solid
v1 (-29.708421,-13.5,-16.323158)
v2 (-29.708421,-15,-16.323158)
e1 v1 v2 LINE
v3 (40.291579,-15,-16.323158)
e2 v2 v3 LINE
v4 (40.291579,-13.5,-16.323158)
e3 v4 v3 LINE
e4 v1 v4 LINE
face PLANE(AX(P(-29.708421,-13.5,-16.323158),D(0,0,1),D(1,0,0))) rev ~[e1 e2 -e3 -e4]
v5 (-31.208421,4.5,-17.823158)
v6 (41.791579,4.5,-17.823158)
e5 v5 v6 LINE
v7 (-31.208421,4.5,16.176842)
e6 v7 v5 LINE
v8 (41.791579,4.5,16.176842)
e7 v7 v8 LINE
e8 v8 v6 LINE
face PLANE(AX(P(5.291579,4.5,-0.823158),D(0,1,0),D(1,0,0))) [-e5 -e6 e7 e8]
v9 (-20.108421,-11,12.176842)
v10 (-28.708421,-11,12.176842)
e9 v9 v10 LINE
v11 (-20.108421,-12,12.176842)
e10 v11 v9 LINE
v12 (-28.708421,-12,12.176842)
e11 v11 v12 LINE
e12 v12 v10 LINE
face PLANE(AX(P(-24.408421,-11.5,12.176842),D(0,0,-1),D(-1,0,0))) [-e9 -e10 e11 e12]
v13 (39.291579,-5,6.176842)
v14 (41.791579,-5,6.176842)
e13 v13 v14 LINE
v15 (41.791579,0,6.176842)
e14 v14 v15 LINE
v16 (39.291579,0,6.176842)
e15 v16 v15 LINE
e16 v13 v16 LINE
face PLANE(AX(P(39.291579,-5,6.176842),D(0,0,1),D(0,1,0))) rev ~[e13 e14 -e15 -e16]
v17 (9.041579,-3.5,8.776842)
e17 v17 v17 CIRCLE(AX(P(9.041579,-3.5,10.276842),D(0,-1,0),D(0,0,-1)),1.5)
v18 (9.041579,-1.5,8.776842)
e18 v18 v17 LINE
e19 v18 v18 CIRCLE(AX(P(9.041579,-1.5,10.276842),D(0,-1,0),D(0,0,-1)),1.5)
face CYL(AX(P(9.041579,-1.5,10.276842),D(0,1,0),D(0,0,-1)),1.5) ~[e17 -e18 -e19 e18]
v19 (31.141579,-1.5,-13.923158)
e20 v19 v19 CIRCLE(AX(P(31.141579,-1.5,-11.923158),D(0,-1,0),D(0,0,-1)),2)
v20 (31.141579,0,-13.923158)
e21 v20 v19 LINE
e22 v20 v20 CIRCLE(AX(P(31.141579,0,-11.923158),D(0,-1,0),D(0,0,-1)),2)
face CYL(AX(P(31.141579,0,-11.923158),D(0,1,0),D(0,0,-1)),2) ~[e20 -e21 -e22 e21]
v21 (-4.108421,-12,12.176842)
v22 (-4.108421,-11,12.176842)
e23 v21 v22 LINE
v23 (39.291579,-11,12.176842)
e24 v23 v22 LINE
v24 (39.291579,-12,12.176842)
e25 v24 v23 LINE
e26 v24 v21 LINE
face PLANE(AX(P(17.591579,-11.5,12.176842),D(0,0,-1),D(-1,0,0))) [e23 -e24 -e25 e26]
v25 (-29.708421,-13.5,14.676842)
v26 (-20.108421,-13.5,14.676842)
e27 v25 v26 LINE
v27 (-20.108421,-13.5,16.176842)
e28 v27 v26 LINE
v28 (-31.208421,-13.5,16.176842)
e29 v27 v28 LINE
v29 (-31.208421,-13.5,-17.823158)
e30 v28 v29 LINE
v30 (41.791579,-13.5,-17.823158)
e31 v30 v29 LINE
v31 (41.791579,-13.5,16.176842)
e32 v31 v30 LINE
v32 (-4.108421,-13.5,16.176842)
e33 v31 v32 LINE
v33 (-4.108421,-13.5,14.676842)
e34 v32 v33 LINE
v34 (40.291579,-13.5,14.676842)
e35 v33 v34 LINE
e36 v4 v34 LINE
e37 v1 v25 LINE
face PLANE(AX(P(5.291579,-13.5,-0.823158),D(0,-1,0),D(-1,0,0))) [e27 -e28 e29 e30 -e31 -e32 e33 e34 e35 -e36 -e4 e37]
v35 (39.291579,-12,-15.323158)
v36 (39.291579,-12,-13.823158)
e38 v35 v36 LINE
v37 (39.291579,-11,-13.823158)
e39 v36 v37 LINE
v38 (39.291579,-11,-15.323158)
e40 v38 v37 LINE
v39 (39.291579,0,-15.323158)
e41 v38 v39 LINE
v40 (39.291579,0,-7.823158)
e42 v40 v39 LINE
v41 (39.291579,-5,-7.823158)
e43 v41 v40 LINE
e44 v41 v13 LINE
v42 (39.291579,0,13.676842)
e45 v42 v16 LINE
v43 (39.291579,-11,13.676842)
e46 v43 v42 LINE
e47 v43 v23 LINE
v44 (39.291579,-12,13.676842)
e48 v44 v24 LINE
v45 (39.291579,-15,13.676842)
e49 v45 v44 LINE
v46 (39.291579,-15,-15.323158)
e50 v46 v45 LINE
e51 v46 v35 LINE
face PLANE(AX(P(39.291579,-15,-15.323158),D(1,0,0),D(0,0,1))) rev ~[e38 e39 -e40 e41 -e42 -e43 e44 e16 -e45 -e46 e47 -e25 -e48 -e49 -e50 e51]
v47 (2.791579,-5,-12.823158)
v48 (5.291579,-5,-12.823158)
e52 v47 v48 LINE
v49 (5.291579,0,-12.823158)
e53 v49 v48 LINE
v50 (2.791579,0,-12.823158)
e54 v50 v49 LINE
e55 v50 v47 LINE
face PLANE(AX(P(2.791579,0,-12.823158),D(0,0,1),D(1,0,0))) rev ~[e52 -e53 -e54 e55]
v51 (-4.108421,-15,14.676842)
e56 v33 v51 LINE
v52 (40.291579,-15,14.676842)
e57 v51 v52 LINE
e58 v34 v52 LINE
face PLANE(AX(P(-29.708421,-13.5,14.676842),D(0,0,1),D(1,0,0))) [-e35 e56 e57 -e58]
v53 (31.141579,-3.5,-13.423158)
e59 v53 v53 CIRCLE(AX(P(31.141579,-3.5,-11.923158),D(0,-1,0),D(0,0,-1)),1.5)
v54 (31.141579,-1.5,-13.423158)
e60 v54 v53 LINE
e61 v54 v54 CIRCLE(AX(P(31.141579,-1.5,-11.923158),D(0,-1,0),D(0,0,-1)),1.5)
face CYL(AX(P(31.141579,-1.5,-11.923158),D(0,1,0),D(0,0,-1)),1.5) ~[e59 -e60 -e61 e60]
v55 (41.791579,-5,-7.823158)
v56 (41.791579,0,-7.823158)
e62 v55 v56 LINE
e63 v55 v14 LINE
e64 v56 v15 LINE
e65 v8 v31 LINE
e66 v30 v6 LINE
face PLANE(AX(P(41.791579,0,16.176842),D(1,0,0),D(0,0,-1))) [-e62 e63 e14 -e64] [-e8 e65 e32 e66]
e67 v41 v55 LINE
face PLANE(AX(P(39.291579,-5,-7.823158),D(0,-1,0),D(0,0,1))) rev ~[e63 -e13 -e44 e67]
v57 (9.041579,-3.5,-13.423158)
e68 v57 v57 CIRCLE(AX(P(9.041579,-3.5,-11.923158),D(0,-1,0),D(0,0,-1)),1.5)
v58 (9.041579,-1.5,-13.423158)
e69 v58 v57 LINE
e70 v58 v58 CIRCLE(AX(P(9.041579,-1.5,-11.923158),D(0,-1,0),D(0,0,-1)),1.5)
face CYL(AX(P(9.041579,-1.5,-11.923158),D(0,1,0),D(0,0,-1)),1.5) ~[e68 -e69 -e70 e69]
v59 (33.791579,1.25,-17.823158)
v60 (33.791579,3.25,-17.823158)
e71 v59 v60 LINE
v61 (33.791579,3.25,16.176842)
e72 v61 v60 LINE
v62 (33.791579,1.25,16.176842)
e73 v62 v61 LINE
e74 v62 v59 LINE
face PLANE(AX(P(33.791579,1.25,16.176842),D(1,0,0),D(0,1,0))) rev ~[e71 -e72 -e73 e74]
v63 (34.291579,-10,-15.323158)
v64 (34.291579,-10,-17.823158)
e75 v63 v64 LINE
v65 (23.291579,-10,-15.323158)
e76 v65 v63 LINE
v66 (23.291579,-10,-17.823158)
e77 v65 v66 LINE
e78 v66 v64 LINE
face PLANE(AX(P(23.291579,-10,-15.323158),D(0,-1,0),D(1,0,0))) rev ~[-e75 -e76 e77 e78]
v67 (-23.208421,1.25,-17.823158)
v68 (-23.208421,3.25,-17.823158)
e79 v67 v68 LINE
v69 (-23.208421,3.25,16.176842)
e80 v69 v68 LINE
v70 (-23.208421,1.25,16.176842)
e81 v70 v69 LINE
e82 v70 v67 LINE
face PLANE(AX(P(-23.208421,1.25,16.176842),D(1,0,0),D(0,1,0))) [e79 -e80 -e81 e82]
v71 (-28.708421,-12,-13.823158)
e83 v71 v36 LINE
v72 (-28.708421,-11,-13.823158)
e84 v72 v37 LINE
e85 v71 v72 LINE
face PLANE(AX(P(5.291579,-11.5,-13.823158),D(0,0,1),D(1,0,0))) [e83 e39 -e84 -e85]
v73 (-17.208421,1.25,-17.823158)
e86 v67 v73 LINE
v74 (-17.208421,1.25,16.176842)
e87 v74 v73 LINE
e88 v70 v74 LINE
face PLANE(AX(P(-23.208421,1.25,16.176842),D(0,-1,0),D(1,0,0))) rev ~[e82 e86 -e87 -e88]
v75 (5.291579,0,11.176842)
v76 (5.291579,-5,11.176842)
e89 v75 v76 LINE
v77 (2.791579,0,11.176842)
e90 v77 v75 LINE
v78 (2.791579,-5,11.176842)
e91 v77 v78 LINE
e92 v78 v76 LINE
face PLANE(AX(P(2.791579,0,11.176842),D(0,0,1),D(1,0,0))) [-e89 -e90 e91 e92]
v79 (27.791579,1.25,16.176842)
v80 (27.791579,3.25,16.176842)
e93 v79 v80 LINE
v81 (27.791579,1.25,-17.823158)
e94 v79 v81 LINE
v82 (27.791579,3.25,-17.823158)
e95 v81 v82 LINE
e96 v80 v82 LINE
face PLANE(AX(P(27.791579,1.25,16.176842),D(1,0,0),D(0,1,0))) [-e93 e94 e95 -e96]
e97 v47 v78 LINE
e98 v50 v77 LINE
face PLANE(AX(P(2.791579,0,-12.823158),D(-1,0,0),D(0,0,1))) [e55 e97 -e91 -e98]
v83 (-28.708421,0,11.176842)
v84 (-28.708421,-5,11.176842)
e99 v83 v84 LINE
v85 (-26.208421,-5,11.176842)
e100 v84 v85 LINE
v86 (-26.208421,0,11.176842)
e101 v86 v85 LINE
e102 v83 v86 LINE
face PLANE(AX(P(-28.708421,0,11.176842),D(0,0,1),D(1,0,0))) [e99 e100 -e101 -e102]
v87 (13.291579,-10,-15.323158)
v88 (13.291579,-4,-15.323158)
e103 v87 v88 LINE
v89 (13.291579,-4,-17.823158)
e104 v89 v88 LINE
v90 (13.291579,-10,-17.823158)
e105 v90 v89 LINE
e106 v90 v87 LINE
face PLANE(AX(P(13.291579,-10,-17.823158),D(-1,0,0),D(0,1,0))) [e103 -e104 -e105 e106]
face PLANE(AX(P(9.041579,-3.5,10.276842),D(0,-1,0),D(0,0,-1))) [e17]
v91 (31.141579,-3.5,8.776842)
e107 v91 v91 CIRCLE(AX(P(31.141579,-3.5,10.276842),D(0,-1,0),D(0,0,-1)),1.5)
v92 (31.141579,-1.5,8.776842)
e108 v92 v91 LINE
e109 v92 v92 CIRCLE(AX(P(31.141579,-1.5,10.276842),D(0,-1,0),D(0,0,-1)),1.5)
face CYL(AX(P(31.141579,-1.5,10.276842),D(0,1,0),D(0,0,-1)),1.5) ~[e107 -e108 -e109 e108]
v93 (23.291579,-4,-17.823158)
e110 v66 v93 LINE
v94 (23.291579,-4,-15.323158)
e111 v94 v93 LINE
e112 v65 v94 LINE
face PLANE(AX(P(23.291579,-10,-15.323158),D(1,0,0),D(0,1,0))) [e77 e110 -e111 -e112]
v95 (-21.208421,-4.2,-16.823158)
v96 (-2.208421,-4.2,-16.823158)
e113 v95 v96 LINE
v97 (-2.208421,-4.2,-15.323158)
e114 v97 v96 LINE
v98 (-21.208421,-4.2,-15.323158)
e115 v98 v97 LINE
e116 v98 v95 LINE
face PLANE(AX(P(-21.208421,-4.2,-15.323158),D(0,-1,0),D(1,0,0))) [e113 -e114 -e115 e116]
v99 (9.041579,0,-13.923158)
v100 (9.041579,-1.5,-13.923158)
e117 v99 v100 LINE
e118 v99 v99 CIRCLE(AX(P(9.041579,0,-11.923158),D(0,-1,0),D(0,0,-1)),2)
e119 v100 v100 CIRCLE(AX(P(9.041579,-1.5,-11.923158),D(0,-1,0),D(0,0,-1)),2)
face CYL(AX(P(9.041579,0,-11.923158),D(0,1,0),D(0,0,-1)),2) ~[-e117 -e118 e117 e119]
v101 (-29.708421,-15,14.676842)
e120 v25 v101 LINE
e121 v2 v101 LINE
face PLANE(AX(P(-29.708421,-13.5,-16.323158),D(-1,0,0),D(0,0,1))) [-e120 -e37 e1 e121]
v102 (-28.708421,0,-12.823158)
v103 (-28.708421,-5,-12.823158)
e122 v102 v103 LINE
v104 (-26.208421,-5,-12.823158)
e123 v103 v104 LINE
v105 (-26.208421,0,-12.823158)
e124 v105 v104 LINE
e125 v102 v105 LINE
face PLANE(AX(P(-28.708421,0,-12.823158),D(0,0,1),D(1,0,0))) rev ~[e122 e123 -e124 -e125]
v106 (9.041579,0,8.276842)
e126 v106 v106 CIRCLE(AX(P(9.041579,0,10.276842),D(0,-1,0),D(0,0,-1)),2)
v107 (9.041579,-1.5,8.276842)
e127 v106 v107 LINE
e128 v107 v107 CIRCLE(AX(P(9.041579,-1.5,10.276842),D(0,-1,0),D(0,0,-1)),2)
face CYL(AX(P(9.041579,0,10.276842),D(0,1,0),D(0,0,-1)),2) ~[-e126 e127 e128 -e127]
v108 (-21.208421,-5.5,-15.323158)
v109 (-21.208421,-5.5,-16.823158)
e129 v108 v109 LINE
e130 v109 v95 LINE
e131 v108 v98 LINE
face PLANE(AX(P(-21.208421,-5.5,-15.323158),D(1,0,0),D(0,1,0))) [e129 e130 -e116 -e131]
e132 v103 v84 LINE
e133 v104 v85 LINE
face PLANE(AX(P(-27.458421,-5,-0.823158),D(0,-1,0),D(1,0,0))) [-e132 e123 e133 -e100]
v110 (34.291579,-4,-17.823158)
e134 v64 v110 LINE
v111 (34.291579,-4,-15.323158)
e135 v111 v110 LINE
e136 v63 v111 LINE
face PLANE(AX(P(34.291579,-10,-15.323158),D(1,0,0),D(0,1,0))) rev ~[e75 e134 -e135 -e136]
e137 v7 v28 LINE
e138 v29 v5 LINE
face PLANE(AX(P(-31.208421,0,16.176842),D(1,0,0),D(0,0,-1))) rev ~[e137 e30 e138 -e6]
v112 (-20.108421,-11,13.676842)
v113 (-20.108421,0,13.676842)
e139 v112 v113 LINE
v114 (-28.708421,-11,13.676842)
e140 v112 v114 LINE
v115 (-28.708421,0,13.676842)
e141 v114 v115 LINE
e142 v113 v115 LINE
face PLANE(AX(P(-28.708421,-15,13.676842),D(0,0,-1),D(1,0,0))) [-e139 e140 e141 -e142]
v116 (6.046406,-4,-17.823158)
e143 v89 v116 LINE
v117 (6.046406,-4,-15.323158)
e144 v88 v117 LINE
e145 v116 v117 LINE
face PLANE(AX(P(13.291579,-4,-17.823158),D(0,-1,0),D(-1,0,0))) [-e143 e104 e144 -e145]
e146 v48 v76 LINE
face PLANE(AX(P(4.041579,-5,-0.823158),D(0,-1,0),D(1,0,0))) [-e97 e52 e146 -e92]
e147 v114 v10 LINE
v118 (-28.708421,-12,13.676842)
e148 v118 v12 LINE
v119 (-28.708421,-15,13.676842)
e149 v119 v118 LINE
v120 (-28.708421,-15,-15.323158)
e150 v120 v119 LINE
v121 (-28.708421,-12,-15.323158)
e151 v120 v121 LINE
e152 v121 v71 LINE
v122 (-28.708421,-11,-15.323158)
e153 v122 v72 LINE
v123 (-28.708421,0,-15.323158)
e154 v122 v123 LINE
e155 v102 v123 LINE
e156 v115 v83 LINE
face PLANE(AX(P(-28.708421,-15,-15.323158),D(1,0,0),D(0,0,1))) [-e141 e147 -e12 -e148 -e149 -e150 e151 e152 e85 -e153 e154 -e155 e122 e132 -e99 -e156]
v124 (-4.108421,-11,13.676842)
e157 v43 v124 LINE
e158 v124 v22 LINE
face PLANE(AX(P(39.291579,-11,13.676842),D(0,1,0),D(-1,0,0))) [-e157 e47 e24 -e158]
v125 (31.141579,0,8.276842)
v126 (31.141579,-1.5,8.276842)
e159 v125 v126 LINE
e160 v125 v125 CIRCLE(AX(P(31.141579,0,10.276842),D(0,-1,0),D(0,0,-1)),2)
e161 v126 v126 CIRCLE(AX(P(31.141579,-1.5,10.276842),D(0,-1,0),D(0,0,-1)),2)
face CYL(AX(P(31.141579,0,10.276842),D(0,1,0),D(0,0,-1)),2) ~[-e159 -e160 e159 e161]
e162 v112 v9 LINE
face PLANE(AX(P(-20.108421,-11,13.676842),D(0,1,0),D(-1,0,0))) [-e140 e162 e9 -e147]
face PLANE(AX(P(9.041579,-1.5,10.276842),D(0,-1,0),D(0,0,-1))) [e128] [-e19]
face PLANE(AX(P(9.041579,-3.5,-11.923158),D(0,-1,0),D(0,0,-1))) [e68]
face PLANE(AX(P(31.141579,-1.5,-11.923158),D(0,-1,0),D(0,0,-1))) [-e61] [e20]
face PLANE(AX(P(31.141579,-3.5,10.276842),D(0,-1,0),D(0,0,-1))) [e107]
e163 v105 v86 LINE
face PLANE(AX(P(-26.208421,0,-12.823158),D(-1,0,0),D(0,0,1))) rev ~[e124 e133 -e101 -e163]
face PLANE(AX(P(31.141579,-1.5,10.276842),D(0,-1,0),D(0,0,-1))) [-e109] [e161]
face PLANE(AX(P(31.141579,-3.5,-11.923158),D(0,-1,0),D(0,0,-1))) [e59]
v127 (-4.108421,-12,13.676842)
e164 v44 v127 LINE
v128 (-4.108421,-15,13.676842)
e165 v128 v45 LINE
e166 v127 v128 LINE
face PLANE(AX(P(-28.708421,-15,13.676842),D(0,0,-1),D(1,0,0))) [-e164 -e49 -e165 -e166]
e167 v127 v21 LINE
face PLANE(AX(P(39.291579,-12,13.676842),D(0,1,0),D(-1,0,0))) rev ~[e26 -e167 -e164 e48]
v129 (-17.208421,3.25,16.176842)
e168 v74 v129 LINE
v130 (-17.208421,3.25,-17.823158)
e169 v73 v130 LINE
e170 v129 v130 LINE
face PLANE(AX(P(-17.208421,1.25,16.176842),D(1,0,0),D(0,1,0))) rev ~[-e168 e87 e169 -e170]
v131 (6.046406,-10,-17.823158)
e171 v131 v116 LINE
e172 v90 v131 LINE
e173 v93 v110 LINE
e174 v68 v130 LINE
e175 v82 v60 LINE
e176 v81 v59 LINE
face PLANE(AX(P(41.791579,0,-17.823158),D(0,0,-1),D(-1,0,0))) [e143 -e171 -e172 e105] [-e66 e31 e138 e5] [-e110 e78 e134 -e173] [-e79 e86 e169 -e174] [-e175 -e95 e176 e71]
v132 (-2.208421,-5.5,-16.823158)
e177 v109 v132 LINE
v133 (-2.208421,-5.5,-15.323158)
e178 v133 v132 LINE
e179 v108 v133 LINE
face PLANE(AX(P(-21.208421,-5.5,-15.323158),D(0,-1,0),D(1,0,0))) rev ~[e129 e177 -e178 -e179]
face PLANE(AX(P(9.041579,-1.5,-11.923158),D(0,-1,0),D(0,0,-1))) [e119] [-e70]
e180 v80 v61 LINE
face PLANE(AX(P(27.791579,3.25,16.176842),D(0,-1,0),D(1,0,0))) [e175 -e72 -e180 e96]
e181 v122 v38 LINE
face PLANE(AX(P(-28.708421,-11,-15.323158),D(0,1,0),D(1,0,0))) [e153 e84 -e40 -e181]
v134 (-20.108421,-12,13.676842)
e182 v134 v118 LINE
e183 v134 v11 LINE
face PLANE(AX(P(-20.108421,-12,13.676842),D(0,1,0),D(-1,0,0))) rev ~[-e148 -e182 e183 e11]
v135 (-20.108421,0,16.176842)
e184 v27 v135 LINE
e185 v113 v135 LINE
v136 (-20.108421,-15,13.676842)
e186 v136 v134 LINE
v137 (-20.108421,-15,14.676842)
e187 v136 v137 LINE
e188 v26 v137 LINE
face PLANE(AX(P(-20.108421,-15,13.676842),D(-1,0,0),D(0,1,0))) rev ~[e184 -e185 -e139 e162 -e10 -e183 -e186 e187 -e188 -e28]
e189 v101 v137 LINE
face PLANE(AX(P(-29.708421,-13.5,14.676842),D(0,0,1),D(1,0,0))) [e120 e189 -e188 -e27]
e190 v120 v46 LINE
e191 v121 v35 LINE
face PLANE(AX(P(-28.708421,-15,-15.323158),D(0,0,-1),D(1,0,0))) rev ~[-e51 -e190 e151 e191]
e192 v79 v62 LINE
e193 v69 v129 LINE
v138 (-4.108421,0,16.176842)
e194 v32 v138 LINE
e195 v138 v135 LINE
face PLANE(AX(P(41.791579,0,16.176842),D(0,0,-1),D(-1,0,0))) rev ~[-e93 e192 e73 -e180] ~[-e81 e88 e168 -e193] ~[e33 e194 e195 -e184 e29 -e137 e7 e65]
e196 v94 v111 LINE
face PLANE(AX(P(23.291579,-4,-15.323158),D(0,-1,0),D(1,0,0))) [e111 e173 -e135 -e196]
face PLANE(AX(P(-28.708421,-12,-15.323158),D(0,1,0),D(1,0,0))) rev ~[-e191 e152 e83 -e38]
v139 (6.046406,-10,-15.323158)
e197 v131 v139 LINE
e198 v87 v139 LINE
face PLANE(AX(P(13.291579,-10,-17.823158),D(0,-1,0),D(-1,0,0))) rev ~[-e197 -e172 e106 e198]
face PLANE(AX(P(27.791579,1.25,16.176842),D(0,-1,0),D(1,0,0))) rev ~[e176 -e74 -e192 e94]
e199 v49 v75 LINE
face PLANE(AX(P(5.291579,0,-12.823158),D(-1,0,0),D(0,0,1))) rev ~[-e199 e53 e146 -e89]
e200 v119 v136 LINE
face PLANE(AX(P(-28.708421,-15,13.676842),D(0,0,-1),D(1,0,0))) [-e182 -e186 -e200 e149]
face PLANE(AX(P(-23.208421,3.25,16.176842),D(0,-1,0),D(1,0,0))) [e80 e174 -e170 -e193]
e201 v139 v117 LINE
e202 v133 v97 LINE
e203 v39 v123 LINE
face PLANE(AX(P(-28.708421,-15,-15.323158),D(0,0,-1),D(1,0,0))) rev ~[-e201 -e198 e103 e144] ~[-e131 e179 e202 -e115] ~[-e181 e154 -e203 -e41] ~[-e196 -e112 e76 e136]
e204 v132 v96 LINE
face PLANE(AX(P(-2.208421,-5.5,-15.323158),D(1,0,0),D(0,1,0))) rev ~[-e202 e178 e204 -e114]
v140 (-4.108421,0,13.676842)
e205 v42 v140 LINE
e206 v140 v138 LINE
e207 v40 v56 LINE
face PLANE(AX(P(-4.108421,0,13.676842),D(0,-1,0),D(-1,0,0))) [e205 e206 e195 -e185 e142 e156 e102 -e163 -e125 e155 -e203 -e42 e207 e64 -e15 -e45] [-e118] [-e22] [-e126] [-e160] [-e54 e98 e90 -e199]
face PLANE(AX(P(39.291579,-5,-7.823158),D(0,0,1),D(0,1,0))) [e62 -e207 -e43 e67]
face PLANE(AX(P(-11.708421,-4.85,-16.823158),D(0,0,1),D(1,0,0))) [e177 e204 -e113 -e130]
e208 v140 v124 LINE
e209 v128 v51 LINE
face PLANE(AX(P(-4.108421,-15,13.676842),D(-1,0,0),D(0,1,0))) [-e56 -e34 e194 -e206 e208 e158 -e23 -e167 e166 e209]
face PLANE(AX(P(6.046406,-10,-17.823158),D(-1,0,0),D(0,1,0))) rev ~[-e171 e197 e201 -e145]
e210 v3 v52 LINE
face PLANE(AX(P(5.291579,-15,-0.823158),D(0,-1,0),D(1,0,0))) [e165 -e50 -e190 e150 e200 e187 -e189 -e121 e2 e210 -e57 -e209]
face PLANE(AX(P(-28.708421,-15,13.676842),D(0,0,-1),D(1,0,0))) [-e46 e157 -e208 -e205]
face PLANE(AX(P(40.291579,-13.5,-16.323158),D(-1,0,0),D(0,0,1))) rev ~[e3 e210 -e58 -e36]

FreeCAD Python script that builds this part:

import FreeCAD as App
import Part
import Sketcher

V = App.Vector
Q = App.Units.Quantity


def add_polygon(sketch, points):
    """Adds a closed chain of lines whose ends are joined by coincident constraints."""
    first, n = sketch.GeometryCount, len(points)
    for a, b in zip(points, points[1:] + points[:1]):
        sketch.addGeometry(Part.LineSegment(App.Vector(*a, 0), App.Vector(*b, 0)), False)
    for i in range(n):
        sketch.addConstraint(Sketcher.Constraint("Coincident", first + i, 2, first + (i + 1) % n, 1))

doc = App.newDocument("Part")
body = doc.addObject("PartDesign::Body", "Body")

# Sketch on XZ plane
sketch1 = body.newObject("Sketcher::SketchObject", "Sketch")
sketch1.AttachmentSupport = (doc.getObject("XZ_Plane"), [""])
sketch1.MapMode = "FlatFace"
add_polygon(sketch1, [(-31, -18), (-31, 16), (42, 16), (42, -18)])  # lines 0-3
sketch1.addConstraint([
    Sketcher.Constraint("Vertical", 0),
    Sketcher.Constraint("Horizontal", 1),
    Sketcher.Constraint("Vertical", 2),
    Sketcher.Constraint("Horizontal", 3),
    Sketcher.Constraint("DistanceX", 1, 1, 1, 2, Q("73 mm")),
    Sketcher.Constraint("DistanceY", 0, 1, 0, 2, Q("34 mm")),
    Sketcher.Constraint("DistanceX", 0, 2, -1, 1, Q("31.208421 mm")),
    Sketcher.Constraint("DistanceY", -1, 1, 0, 2, Q("16.176842 mm")),
])
pad1 = body.newObject("PartDesign::Pad", "Pad")
pad1.Profile = sketch1
pad1.Length = 4.5
pad1.Reversed = True

# Sketch on XZ plane
sketch2 = body.newObject("Sketcher::SketchObject", "Sketch001")
sketch2.AttachmentSupport = (doc.getObject("XZ_Plane"), [""])
sketch2.MapMode = "FlatFace"
add_polygon(sketch2, [(42, -18), (42, 16), (-31, 16), (-31, -18)])  # lines 0-3
sketch2.addConstraint([
    Sketcher.Constraint("Vertical", 0),
    Sketcher.Constraint("Horizontal", 1),
    Sketcher.Constraint("Vertical", 2),
    Sketcher.Constraint("Horizontal", 3),
    Sketcher.Constraint("DistanceX", 1, 2, 1, 1, Q("73 mm")),
    Sketcher.Constraint("DistanceY", 0, 1, 0, 2, Q("34 mm")),
    Sketcher.Constraint("DistanceX", -1, 1, 0, 2, Q("41.791579 mm")),
    Sketcher.Constraint("DistanceY", -1, 1, 0, 2, Q("16.176842 mm")),
])
pad2 = body.newObject("PartDesign::Pad", "Pad001")
pad2.Profile = sketch2
pad2.Length = 13.5

# Sketch on XZ plane
sketch3 = body.newObject("Sketcher::SketchObject", "Sketch002")
sketch3.AttachmentSupport = (doc.getObject("XZ_Plane"), [""])
sketch3.MapMode = "FlatFace"
sketch3.AttachmentOffset = App.Placement(V(0, 0, 13.5), App.Rotation())
add_polygon(sketch3, [(39, -15), (39, 14), (-29, 14), (-29, -15)])  # lines 0-3
sketch3.addConstraint([
    Sketcher.Constraint("Vertical", 0),
    Sketcher.Constraint("Horizontal", 1),
    Sketcher.Constraint("Vertical", 2),
    Sketcher.Constraint("Horizontal", 3),
    Sketcher.Constraint("DistanceX", 1, 2, 1, 1, Q("68 mm")),
    Sketcher.Constraint("DistanceY", 0, 1, 0, 2, Q("29 mm")),
    Sketcher.Constraint("DistanceX", -1, 1, 0, 2, Q("39.291579 mm")),
    Sketcher.Constraint("DistanceY", -1, 1, 0, 2, Q("13.676842 mm")),
])
pocket1 = body.newObject("PartDesign::Pocket", "Pocket")
pocket1.Profile = sketch3
pocket1.Length = 13.5

# Sketch on XZ plane
sketch4 = body.newObject("Sketcher::SketchObject", "Sketch003")
sketch4.AttachmentSupport = (doc.getObject("XZ_Plane"), [""])
sketch4.MapMode = "FlatFace"
sketch4.addGeometry(Part.Circle(V(31.1, -11.9, 0), V(0, 0, 1), 2), False)
sketch4.addConstraint([
    Sketcher.Constraint("Diameter", 0, Q("4 mm")),
    Sketcher.Constraint("DistanceX", -1, 1, 0, 3, Q("31.141579 mm")),
    Sketcher.Constraint("DistanceY", 0, 3, -1, 1, Q("11.923158 mm")),
])
pad3 = body.newObject("PartDesign::Pad", "Pad002")
pad3.Profile = sketch4
pad3.Length = 1.5

# Sketch on XZ plane
sketch5 = body.newObject("Sketcher::SketchObject", "Sketch004")
sketch5.AttachmentSupport = (doc.getObject("XZ_Plane"), [""])
sketch5.MapMode = "FlatFace"
sketch5.addGeometry(Part.Circle(V(9, -11.9, 0), V(0, 0, 1), 2), False)
sketch5.addConstraint([
    Sketcher.Constraint("Diameter", 0, Q("4 mm")),
    Sketcher.Constraint("DistanceX", -1, 1, 0, 3, Q("9.041579 mm")),
    Sketcher.Constraint("DistanceY", 0, 3, -1, 1, Q("11.923158 mm")),
])
pad4 = body.newObject("PartDesign::Pad", "Pad003")
pad4.Profile = sketch5
pad4.Length = 1.5

# Sketch on XZ plane
sketch6 = body.newObject("Sketcher::SketchObject", "Sketch005")
sketch6.AttachmentSupport = (doc.getObject("XZ_Plane"), [""])
sketch6.MapMode = "FlatFace"
sketch6.addGeometry(Part.Circle(V(9, 10.3, 0), V(0, 0, 1), 2), False)
sketch6.addConstraint([
    Sketcher.Constraint("Diameter", 0, Q("4 mm")),
    Sketcher.Constraint("DistanceX", -1, 1, 0, 3, Q("9.041579 mm")),
    Sketcher.Constraint("DistanceY", -1, 1, 0, 3, Q("10.276842 mm")),
])
pad5 = body.newObject("PartDesign::Pad", "Pad004")
pad5.Profile = sketch6
pad5.Length = 1.5

# Sketch on XZ plane
sketch7 = body.newObject("Sketcher::SketchObject", "Sketch006")
sketch7.AttachmentSupport = (doc.getObject("XZ_Plane"), [""])
sketch7.MapMode = "FlatFace"
sketch7.addGeometry(Part.Circle(V(31.1, 10.3, 0), V(0, 0, 1), 2), False)
sketch7.addConstraint([
    Sketcher.Constraint("Diameter", 0, Q("4 mm")),
    Sketcher.Constraint("DistanceX", -1, 1, 0, 3, Q("31.141579 mm")),
    Sketcher.Constraint("DistanceY", -1, 1, 0, 3, Q("10.276842 mm")),
])
pad6 = body.newObject("PartDesign::Pad", "Pad005")
pad6.Profile = sketch7
pad6.Length = 1.5

# Sketch on XZ plane
sketch8 = body.newObject("Sketcher::SketchObject", "Sketch007")
sketch8.AttachmentSupport = (doc.getObject("XZ_Plane"), [""])
sketch8.MapMode = "FlatFace"
sketch8.AttachmentOffset = App.Placement(V(0, 0, 1.5), App.Rotation())
sketch8.addGeometry(Part.Circle(V(31.1, -11.9, 0), V(0, 0, 1), 1.5), False)
sketch8.addConstraint([
    Sketcher.Constraint("Diameter", 0, Q("3 mm")),
    Sketcher.Constraint("DistanceX", -1, 1, 0, 3, Q("31.141579 mm")),
    Sketcher.Constraint("DistanceY", 0, 3, -1, 1, Q("11.923158 mm")),
])
pad7 = body.newObject("PartDesign::Pad", "Pad006")
pad7.Profile = sketch8
pad7.Length = 2

# Sketch on XZ plane
sketch9 = body.newObject("Sketcher::SketchObject", "Sketch008")
sketch9.AttachmentSupport = (doc.getObject("XZ_Plane"), [""])
sketch9.MapMode = "FlatFace"
sketch9.AttachmentOffset = App.Placement(V(0, 0, 1.5), App.Rotation())
sketch9.addGeometry(Part.Circle(V(9, -11.9, 0), V(0, 0, 1), 1.5), False)
sketch9.addConstraint([
    Sketcher.Constraint("Diameter", 0, Q("3 mm")),
    Sketcher.Constraint("DistanceX", -1, 1, 0, 3, Q("9.041579 mm")),
    Sketcher.Constraint("DistanceY", 0, 3, -1, 1, Q("11.923158 mm")),
])
pad8 = body.newObject("PartDesign::Pad", "Pad007")
pad8.Profile = sketch9
pad8.Length = 2

# Sketch on XZ plane
sketch10 = body.newObject("Sketcher::SketchObject", "Sketch009")
sketch10.AttachmentSupport = (doc.getObject("XZ_Plane"), [""])
sketch10.MapMode = "FlatFace"
sketch10.AttachmentOffset = App.Placement(V(0, 0, 1.5), App.Rotation())
sketch10.addGeometry(Part.Circle(V(9, 10.3, 0), V(0, 0, 1), 1.5), False)
sketch10.addConstraint([
    Sketcher.Constraint("Diameter", 0, Q("3 mm")),
    Sketcher.Constraint("DistanceX", -1, 1, 0, 3, Q("9.041579 mm")),
    Sketcher.Constraint("DistanceY", -1, 1, 0, 3, Q("10.276842 mm")),
])
pad9 = body.newObject("PartDesign::Pad", "Pad008")
pad9.Profile = sketch10
pad9.Length = 2

# Sketch on XZ plane
sketch11 = body.newObject("Sketcher::SketchObject", "Sketch010")
sketch11.AttachmentSupport = (doc.getObject("XZ_Plane"), [""])
sketch11.MapMode = "FlatFace"
sketch11.AttachmentOffset = App.Placement(V(0, 0, 1.5), App.Rotation())
sketch11.addGeometry(Part.Circle(V(31.1, 10.3, 0), V(0, 0, 1), 1.5), False)
sketch11.addConstraint([
    Sketcher.Constraint("Diameter", 0, Q("3 mm")),
    Sketcher.Constraint("DistanceX", -1, 1, 0, 3, Q("31.141579 mm")),
    Sketcher.Constraint("DistanceY", -1, 1, 0, 3, Q("10.276842 mm")),
])
pad10 = body.newObject("PartDesign::Pad", "Pad009")
pad10.Profile = sketch11
pad10.Length = 2

# Sketch on XY plane
sketch12 = body.newObject("Sketcher::SketchObject", "Sketch011")
sketch12.AttachmentSupport = (doc.getObject("XY_Plane"), [""])
sketch12.MapMode = "FlatFace"
sketch12.AttachmentOffset = App.Placement(V(0, 0, -15.323158), App.Rotation())
add_polygon(sketch12, [(-21.2, -4.2), (-21.2, -5.5), (-2.2, -5.5), (-2.2, -4.2)])  # lines 0-3
sketch12.addConstraint([
    Sketcher.Constraint("Vertical", 0),
    Sketcher.Constraint("Horizontal", 1),
    Sketcher.Constraint("Vertical", 2),
    Sketcher.Constraint("Horizontal", 3),
    Sketcher.Constraint("DistanceX", 1, 1, 1, 2, Q("19 mm")),
    Sketcher.Constraint("DistanceY", 0, 2, 0, 1, Q("1.3 mm")),
    Sketcher.Constraint("DistanceY", 0, 2, -1, 1, Q("5.5 mm")),
    Sketcher.Constraint("DistanceX", 0, 2, -1, 1, Q("21.208421 mm")),
])
pocket2 = body.newObject("PartDesign::Pocket", "Pocket001")
pocket2.Profile = sketch12
pocket2.Length = 1.5

# Sketch on XZ plane
sketch13 = body.newObject("Sketcher::SketchObject", "Sketch012")
sketch13.AttachmentSupport = (doc.getObject("XZ_Plane"), [""])
sketch13.MapMode = "FlatFace"
add_polygon(sketch13, [(-28.7, 11.2), (-28.7, -12.8), (-26.2, -12.8), (-26.2, 11.2)])  # lines 0-3
sketch13.addConstraint([
    Sketcher.Constraint("Vertical", 0),
    Sketcher.Constraint("Horizontal", 1),
    Sketcher.Constraint("Vertical", 2),
    Sketcher.Constraint("Horizontal", 3),
    Sketcher.Constraint("DistanceY", 0, 2, 0, 1, Q("24 mm")),
    Sketcher.Constraint("DistanceX", 1, 1, 1, 2, Q("2.5 mm")),
    Sketcher.Constraint("DistanceX", 0, 2, -1, 1, Q("28.708421 mm")),
    Sketcher.Constraint("DistanceY", 0, 2, -1, 1, Q("12.823158 mm")),
])
pad11 = body.newObject("PartDesign::Pad", "Pad010")
pad11.Profile = sketch13
pad11.Length = 5

# Sketch on XZ plane
sketch14 = body.newObject("Sketcher::SketchObject", "Sketch013")
sketch14.AttachmentSupport = (doc.getObject("XZ_Plane"), [""])
sketch14.MapMode = "FlatFace"
add_polygon(sketch14, [(2.8, 11.2), (2.8, -12.8), (5.3, -12.8), (5.3, 11.2)])  # lines 0-3
sketch14.addConstraint([
    Sketcher.Constraint("Vertical", 0),
    Sketcher.Constraint("Horizontal", 1),
    Sketcher.Constraint("Vertical", 2),
    Sketcher.Constraint("Horizontal", 3),
    Sketcher.Constraint("DistanceY", 0, 2, 0, 1, Q("24 mm")),
    Sketcher.Constraint("DistanceX", 1, 1, 1, 2, Q("2.5 mm")),
    Sketcher.Constraint("DistanceX", -1, 1, 0, 2, Q("2.791579 mm")),
    Sketcher.Constraint("DistanceY", 0, 2, -1, 1, Q("12.823158 mm")),
])
pad12 = body.newObject("PartDesign::Pad", "Pad011")
pad12.Profile = sketch14
pad12.Length = 5

# Sketch on XZ plane
sketch15 = body.newObject("Sketcher::SketchObject", "Sketch014")
sketch15.AttachmentSupport = (doc.getObject("XZ_Plane"), [""])
sketch15.MapMode = "FlatFace"
sketch15.AttachmentOffset = App.Placement(V(0, 0, 13.5), App.Rotation())
add_polygon(sketch15, [(-30, 15), (-30, -16), (40, -16), (40, 15)])  # lines 0-3
sketch15.addConstraint([
    Sketcher.Constraint("Vertical", 0),
    Sketcher.Constraint("Horizontal", 1),
    Sketcher.Constraint("Vertical", 2),
    Sketcher.Constraint("Horizontal", 3),
    Sketcher.Constraint("DistanceX", 1, 1, 1, 2, Q("70 mm")),
    Sketcher.Constraint("DistanceY", 0, 2, 0, 1, Q("31 mm")),
    Sketcher.Constraint("DistanceX", 0, 2, -1, 1, Q("29.708421 mm")),
    Sketcher.Constraint("DistanceY", 0, 2, -1, 1, Q("16.323158 mm")),
])
pad13 = body.newObject("PartDesign::Pad", "Pad012")
pad13.Profile = sketch15
pad13.Length = 1.5

# Sketch on XY plane
sketch16 = body.newObject("Sketcher::SketchObject", "Sketch015")
sketch16.AttachmentSupport = (doc.getObject("XY_Plane"), [""])
sketch16.MapMode = "FlatFace"
sketch16.AttachmentOffset = App.Placement(V(0, 0, 13.676842), App.Rotation())
add_polygon(sketch16, [(-4, 0), (-4, -15), (-20, -15), (-20, 0)])  # lines 0-3
sketch16.addConstraint([
    Sketcher.Constraint("Vertical", 0),
    Sketcher.Constraint("Horizontal", 1),
    Sketcher.Constraint("Vertical", 2),
    Sketcher.Constraint("Horizontal", 3),
    Sketcher.Constraint("PointOnObject", 2, 2, -1),
    Sketcher.Constraint("DistanceX", 1, 2, 1, 1, Q("16 mm")),
    Sketcher.Constraint("DistanceY", 0, 2, 0, 1, Q("15 mm")),
    Sketcher.Constraint("DistanceX", 0, 2, -1, 1, Q("4.108421 mm")),
])
pocket3 = body.newObject("PartDesign::Pocket", "Pocket002")
pocket3.Profile = sketch16
pocket3.Length = 2.5
pocket3.Reversed = True

# Sketch on XZ plane
sketch17 = body.newObject("Sketcher::SketchObject", "Sketch016")
sketch17.AttachmentSupport = (doc.getObject("XZ_Plane"), [""])
sketch17.MapMode = "FlatFace"
sketch17.AttachmentOffset = App.Placement(V(0, 0, 15), App.Rotation())
add_polygon(sketch17, [(-29, 14), (-29, -15), (39, -15), (39, 14)])  # lines 0-3
sketch17.addConstraint([
    Sketcher.Constraint("Vertical", 0),
    Sketcher.Constraint("Horizontal", 1),
    Sketcher.Constraint("Vertical", 2),
    Sketcher.Constraint("Horizontal", 3),
    Sketcher.Constraint("DistanceX", 1, 1, 1, 2, Q("68 mm")),
    Sketcher.Constraint("DistanceY", 0, 2, 0, 1, Q("29 mm")),
    Sketcher.Constraint("DistanceX", 0, 2, -1, 1, Q("28.708421 mm")),
    Sketcher.Constraint("DistanceY", 0, 2, -1, 1, Q("15.323158 mm")),
])
pocket4 = body.newObject("PartDesign::Pocket", "Pocket003")
pocket4.Profile = sketch17
pocket4.Length = 1.5

# Sketch on XY plane
sketch18 = body.newObject("Sketcher::SketchObject", "Sketch017")
sketch18.AttachmentSupport = (doc.getObject("XY_Plane"), [""])
sketch18.MapMode = "FlatFace"
sketch18.AttachmentOffset = App.Placement(V(0, 0, 16.176842), App.Rotation())
add_polygon(sketch18, [(27.8, 3.2), (27.8, 1.2), (33.8, 1.2), (33.8, 3.2)])  # lines 0-3
sketch18.addConstraint([
    Sketcher.Constraint("Vertical", 0),
    Sketcher.Constraint("Horizontal", 1),
    Sketcher.Constraint("Vertical", 2),
    Sketcher.Constraint("Horizontal", 3),
    Sketcher.Constraint("DistanceX", 1, 1, 1, 2, Q("6 mm")),
    Sketcher.Constraint("DistanceY", 0, 2, 0, 1, Q("2 mm")),
    Sketcher.Constraint("DistanceY", -1, 1, 0, 2, Q("1.25 mm")),
    Sketcher.Constraint("DistanceX", -1, 1, 0, 2, Q("27.791579 mm")),
])
pocket5 = body.newObject("PartDesign::Pocket", "Pocket004")
pocket5.Profile = sketch18
pocket5.Length = 34

# Sketch on XY plane
sketch19 = body.newObject("Sketcher::SketchObject", "Sketch018")
sketch19.AttachmentSupport = (doc.getObject("XY_Plane"), [""])
sketch19.MapMode = "FlatFace"
sketch19.AttachmentOffset = App.Placement(V(0, 0, 16.176842), App.Rotation())
add_polygon(sketch19, [(-23.2, 3.2), (-23.2, 1.2), (-17.2, 1.2), (-17.2, 3.2)])  # lines 0-3
sketch19.addConstraint([
    Sketcher.Constraint("Vertical", 0),
    Sketcher.Constraint("Horizontal", 1),
    Sketcher.Constraint("Vertical", 2),
    Sketcher.Constraint("Horizontal", 3),
    Sketcher.Constraint("DistanceX", 1, 1, 1, 2, Q("6 mm")),
    Sketcher.Constraint("DistanceY", 0, 2, 0, 1, Q("2 mm")),
    Sketcher.Constraint("DistanceY", -1, 1, 0, 2, Q("1.25 mm")),
    Sketcher.Constraint("DistanceX", 0, 2, -1, 1, Q("23.208421 mm")),
])
pocket6 = body.newObject("PartDesign::Pocket", "Pocket005")
pocket6.Profile = sketch19
pocket6.Length = 34

# Sketch on YZ plane
sketch20 = body.newObject("Sketcher::SketchObject", "Sketch019")
sketch20.AttachmentSupport = (doc.getObject("YZ_Plane"), [""])
sketch20.MapMode = "FlatFace"
sketch20.AttachmentOffset = App.Placement(V(0, 0, 39.291579), App.Rotation())
add_polygon(sketch20, [(0, -8), (-5, -8), (-5, 6), (0, 6)])  # lines 0-3
sketch20.addConstraint([
    Sketcher.Constraint("Horizontal", 0),
    Sketcher.Constraint("Vertical", 1),
    Sketcher.Constraint("Horizontal", 2),
    Sketcher.Constraint("Vertical", 3),
    Sketcher.Constraint("PointOnObject", 2, 2, -2),
    Sketcher.Constraint("DistanceX", 0, 2, 0, 1, Q("5 mm")),
    Sketcher.Constraint("DistanceY", 1, 1, 1, 2, Q("14 mm")),
    Sketcher.Constraint("DistanceY", 0, 2, -1, 1, Q("7.823158 mm")),
])
pocket7 = body.newObject("PartDesign::Pocket", "Pocket006")
pocket7.Profile = sketch20
pocket7.Length = 2.5
pocket7.Reversed = True

# Sketch on XY plane
sketch21 = body.newObject("Sketcher::SketchObject", "Sketch020")
sketch21.AttachmentSupport = (doc.getObject("XY_Plane"), [""])
sketch21.MapMode = "FlatFace"
sketch21.AttachmentOffset = App.Placement(V(0, 0, -15.323158), App.Rotation())
add_polygon(sketch21, [(-28.7, -11), (-28.7, -12), (39.3, -12), (39.3, -11)])  # lines 0-3
sketch21.addConstraint([
    Sketcher.Constraint("Vertical", 0),
    Sketcher.Constraint("Horizontal", 1),
    Sketcher.Constraint("Vertical", 2),
    Sketcher.Constraint("Horizontal", 3),
    Sketcher.Constraint("DistanceX", 1, 1, 1, 2, Q("68 mm")),
    Sketcher.Constraint("DistanceY", 0, 2, 0, 1, Q("1 mm")),
    Sketcher.Constraint("DistanceY", 0, 2, -1, 1, Q("12 mm")),
    Sketcher.Constraint("DistanceX", 0, 2, -1, 1, Q("28.708421 mm")),
])
pad14 = body.newObject("PartDesign::Pad", "Pad013")
pad14.Profile = sketch21
pad14.Length = 1.5

# Sketch on XY plane
sketch22 = body.newObject("Sketcher::SketchObject", "Sketch021")
sketch22.AttachmentSupport = (doc.getObject("XY_Plane"), [""])
sketch22.MapMode = "FlatFace"
sketch22.AttachmentOffset = App.Placement(V(0, 0, 13.676842), App.Rotation())
add_polygon(sketch22, [(39.3, -11), (39.3, -12), (-4.1, -12), (-4.1, -11)])  # lines 0-3
add_polygon(sketch22, [(-20.1, -11), (-20.1, -12), (-28.7, -12), (-28.7, -11)])  # lines 4-7
sketch22.addConstraint([
    Sketcher.Constraint("Vertical", 0),
    Sketcher.Constraint("Horizontal", 1),
    Sketcher.Constraint("Vertical", 2),
    Sketcher.Constraint("Horizontal", 3),
    Sketcher.Constraint("Vertical", 4),
    Sketcher.Constraint("Horizontal", 5),
    Sketcher.Constraint("Vertical", 6),
    Sketcher.Constraint("Horizontal", 7),
    Sketcher.Constraint("Horizontal", 1, 2, 4, 2),
    Sketcher.Constraint("Horizontal", 3, 2, 6, 2),
    Sketcher.Constraint("DistanceY", 0, 2, 0, 1, Q("1 mm")),
    Sketcher.Constraint("DistanceX", 1, 2, 1, 1, Q("43.4 mm")),
    Sketcher.Constraint("DistanceX", 5, 2, 5, 1, Q("8.6 mm")),
    Sketcher.Constraint("DistanceY", 0, 2, -1, 1, Q("12 mm")),
    Sketcher.Constraint("DistanceX", 4, 2, 1, 2, Q("16 mm")),
    Sketcher.Constraint("DistanceX", -1, 1, 0, 2, Q("39.291579 mm")),
])
pad15 = body.newObject("PartDesign::Pad", "Pad014")
pad15.Profile = sketch22
pad15.Length = 1.5
pad15.Reversed = True

# Sketch on XY plane
sketch23 = body.newObject("Sketcher::SketchObject", "Sketch022")
sketch23.AttachmentSupport = (doc.getObject("XY_Plane"), [""])
sketch23.MapMode = "FlatFace"
sketch23.AttachmentOffset = App.Placement(V(0, 0, -15.323158), App.Rotation())
add_polygon(sketch23, [(23, -4), (23, -10), (34, -10), (34, -4)])  # lines 0-3
sketch23.addConstraint([
    Sketcher.Constraint("Vertical", 0),
    Sketcher.Constraint("Horizontal", 1),
    Sketcher.Constraint("Vertical", 2),
    Sketcher.Constraint("Horizontal", 3),
    Sketcher.Constraint("DistanceX", 1, 1, 1, 2, Q("11 mm")),
    Sketcher.Constraint("DistanceY", 0, 2, 0, 1, Q("6 mm")),
    Sketcher.Constraint("DistanceY", 0, 2, -1, 1, Q("10 mm")),
    Sketcher.Constraint("DistanceX", -1, 1, 0, 2, Q("23.291579 mm")),
])
pocket8 = body.newObject("PartDesign::Pocket", "Pocket007")
pocket8.Profile = sketch23
pocket8.Length = 2.5

# Sketch on XY plane
sketch24 = body.newObject("Sketcher::SketchObject", "Sketch023")
sketch24.AttachmentSupport = (doc.getObject("XY_Plane"), [""])
sketch24.MapMode = "FlatFace"
sketch24.AttachmentOffset = App.Placement(V(0, 0, -17.823158), App.Rotation())
add_polygon(sketch24, [(13, -4), (13, -10), (6, -10), (6, -4)])  # lines 0-3
sketch24.addConstraint([
    Sketcher.Constraint("Vertical", 0),
    Sketcher.Constraint("Horizontal", 1),
    Sketcher.Constraint("Vertical", 2),
    Sketcher.Constraint("Horizontal", 3),
    Sketcher.Constraint("DistanceY", 0, 2, 0, 1, Q("6 mm")),
    Sketcher.Constraint("DistanceY", 0, 2, -1, 1, Q("10 mm")),
    Sketcher.Constraint("DistanceX", 1, 2, 1, 1, Q("7.245173 mm")),
    Sketcher.Constraint("DistanceX", -1, 1, 0, 2, Q("13.291579 mm")),
])
pocket9 = body.newObject("PartDesign::Pocket", "Pocket008")
pocket9.Profile = sketch24
pocket9.Length = 2.5
pocket9.Reversed = True

doc.recompute()
